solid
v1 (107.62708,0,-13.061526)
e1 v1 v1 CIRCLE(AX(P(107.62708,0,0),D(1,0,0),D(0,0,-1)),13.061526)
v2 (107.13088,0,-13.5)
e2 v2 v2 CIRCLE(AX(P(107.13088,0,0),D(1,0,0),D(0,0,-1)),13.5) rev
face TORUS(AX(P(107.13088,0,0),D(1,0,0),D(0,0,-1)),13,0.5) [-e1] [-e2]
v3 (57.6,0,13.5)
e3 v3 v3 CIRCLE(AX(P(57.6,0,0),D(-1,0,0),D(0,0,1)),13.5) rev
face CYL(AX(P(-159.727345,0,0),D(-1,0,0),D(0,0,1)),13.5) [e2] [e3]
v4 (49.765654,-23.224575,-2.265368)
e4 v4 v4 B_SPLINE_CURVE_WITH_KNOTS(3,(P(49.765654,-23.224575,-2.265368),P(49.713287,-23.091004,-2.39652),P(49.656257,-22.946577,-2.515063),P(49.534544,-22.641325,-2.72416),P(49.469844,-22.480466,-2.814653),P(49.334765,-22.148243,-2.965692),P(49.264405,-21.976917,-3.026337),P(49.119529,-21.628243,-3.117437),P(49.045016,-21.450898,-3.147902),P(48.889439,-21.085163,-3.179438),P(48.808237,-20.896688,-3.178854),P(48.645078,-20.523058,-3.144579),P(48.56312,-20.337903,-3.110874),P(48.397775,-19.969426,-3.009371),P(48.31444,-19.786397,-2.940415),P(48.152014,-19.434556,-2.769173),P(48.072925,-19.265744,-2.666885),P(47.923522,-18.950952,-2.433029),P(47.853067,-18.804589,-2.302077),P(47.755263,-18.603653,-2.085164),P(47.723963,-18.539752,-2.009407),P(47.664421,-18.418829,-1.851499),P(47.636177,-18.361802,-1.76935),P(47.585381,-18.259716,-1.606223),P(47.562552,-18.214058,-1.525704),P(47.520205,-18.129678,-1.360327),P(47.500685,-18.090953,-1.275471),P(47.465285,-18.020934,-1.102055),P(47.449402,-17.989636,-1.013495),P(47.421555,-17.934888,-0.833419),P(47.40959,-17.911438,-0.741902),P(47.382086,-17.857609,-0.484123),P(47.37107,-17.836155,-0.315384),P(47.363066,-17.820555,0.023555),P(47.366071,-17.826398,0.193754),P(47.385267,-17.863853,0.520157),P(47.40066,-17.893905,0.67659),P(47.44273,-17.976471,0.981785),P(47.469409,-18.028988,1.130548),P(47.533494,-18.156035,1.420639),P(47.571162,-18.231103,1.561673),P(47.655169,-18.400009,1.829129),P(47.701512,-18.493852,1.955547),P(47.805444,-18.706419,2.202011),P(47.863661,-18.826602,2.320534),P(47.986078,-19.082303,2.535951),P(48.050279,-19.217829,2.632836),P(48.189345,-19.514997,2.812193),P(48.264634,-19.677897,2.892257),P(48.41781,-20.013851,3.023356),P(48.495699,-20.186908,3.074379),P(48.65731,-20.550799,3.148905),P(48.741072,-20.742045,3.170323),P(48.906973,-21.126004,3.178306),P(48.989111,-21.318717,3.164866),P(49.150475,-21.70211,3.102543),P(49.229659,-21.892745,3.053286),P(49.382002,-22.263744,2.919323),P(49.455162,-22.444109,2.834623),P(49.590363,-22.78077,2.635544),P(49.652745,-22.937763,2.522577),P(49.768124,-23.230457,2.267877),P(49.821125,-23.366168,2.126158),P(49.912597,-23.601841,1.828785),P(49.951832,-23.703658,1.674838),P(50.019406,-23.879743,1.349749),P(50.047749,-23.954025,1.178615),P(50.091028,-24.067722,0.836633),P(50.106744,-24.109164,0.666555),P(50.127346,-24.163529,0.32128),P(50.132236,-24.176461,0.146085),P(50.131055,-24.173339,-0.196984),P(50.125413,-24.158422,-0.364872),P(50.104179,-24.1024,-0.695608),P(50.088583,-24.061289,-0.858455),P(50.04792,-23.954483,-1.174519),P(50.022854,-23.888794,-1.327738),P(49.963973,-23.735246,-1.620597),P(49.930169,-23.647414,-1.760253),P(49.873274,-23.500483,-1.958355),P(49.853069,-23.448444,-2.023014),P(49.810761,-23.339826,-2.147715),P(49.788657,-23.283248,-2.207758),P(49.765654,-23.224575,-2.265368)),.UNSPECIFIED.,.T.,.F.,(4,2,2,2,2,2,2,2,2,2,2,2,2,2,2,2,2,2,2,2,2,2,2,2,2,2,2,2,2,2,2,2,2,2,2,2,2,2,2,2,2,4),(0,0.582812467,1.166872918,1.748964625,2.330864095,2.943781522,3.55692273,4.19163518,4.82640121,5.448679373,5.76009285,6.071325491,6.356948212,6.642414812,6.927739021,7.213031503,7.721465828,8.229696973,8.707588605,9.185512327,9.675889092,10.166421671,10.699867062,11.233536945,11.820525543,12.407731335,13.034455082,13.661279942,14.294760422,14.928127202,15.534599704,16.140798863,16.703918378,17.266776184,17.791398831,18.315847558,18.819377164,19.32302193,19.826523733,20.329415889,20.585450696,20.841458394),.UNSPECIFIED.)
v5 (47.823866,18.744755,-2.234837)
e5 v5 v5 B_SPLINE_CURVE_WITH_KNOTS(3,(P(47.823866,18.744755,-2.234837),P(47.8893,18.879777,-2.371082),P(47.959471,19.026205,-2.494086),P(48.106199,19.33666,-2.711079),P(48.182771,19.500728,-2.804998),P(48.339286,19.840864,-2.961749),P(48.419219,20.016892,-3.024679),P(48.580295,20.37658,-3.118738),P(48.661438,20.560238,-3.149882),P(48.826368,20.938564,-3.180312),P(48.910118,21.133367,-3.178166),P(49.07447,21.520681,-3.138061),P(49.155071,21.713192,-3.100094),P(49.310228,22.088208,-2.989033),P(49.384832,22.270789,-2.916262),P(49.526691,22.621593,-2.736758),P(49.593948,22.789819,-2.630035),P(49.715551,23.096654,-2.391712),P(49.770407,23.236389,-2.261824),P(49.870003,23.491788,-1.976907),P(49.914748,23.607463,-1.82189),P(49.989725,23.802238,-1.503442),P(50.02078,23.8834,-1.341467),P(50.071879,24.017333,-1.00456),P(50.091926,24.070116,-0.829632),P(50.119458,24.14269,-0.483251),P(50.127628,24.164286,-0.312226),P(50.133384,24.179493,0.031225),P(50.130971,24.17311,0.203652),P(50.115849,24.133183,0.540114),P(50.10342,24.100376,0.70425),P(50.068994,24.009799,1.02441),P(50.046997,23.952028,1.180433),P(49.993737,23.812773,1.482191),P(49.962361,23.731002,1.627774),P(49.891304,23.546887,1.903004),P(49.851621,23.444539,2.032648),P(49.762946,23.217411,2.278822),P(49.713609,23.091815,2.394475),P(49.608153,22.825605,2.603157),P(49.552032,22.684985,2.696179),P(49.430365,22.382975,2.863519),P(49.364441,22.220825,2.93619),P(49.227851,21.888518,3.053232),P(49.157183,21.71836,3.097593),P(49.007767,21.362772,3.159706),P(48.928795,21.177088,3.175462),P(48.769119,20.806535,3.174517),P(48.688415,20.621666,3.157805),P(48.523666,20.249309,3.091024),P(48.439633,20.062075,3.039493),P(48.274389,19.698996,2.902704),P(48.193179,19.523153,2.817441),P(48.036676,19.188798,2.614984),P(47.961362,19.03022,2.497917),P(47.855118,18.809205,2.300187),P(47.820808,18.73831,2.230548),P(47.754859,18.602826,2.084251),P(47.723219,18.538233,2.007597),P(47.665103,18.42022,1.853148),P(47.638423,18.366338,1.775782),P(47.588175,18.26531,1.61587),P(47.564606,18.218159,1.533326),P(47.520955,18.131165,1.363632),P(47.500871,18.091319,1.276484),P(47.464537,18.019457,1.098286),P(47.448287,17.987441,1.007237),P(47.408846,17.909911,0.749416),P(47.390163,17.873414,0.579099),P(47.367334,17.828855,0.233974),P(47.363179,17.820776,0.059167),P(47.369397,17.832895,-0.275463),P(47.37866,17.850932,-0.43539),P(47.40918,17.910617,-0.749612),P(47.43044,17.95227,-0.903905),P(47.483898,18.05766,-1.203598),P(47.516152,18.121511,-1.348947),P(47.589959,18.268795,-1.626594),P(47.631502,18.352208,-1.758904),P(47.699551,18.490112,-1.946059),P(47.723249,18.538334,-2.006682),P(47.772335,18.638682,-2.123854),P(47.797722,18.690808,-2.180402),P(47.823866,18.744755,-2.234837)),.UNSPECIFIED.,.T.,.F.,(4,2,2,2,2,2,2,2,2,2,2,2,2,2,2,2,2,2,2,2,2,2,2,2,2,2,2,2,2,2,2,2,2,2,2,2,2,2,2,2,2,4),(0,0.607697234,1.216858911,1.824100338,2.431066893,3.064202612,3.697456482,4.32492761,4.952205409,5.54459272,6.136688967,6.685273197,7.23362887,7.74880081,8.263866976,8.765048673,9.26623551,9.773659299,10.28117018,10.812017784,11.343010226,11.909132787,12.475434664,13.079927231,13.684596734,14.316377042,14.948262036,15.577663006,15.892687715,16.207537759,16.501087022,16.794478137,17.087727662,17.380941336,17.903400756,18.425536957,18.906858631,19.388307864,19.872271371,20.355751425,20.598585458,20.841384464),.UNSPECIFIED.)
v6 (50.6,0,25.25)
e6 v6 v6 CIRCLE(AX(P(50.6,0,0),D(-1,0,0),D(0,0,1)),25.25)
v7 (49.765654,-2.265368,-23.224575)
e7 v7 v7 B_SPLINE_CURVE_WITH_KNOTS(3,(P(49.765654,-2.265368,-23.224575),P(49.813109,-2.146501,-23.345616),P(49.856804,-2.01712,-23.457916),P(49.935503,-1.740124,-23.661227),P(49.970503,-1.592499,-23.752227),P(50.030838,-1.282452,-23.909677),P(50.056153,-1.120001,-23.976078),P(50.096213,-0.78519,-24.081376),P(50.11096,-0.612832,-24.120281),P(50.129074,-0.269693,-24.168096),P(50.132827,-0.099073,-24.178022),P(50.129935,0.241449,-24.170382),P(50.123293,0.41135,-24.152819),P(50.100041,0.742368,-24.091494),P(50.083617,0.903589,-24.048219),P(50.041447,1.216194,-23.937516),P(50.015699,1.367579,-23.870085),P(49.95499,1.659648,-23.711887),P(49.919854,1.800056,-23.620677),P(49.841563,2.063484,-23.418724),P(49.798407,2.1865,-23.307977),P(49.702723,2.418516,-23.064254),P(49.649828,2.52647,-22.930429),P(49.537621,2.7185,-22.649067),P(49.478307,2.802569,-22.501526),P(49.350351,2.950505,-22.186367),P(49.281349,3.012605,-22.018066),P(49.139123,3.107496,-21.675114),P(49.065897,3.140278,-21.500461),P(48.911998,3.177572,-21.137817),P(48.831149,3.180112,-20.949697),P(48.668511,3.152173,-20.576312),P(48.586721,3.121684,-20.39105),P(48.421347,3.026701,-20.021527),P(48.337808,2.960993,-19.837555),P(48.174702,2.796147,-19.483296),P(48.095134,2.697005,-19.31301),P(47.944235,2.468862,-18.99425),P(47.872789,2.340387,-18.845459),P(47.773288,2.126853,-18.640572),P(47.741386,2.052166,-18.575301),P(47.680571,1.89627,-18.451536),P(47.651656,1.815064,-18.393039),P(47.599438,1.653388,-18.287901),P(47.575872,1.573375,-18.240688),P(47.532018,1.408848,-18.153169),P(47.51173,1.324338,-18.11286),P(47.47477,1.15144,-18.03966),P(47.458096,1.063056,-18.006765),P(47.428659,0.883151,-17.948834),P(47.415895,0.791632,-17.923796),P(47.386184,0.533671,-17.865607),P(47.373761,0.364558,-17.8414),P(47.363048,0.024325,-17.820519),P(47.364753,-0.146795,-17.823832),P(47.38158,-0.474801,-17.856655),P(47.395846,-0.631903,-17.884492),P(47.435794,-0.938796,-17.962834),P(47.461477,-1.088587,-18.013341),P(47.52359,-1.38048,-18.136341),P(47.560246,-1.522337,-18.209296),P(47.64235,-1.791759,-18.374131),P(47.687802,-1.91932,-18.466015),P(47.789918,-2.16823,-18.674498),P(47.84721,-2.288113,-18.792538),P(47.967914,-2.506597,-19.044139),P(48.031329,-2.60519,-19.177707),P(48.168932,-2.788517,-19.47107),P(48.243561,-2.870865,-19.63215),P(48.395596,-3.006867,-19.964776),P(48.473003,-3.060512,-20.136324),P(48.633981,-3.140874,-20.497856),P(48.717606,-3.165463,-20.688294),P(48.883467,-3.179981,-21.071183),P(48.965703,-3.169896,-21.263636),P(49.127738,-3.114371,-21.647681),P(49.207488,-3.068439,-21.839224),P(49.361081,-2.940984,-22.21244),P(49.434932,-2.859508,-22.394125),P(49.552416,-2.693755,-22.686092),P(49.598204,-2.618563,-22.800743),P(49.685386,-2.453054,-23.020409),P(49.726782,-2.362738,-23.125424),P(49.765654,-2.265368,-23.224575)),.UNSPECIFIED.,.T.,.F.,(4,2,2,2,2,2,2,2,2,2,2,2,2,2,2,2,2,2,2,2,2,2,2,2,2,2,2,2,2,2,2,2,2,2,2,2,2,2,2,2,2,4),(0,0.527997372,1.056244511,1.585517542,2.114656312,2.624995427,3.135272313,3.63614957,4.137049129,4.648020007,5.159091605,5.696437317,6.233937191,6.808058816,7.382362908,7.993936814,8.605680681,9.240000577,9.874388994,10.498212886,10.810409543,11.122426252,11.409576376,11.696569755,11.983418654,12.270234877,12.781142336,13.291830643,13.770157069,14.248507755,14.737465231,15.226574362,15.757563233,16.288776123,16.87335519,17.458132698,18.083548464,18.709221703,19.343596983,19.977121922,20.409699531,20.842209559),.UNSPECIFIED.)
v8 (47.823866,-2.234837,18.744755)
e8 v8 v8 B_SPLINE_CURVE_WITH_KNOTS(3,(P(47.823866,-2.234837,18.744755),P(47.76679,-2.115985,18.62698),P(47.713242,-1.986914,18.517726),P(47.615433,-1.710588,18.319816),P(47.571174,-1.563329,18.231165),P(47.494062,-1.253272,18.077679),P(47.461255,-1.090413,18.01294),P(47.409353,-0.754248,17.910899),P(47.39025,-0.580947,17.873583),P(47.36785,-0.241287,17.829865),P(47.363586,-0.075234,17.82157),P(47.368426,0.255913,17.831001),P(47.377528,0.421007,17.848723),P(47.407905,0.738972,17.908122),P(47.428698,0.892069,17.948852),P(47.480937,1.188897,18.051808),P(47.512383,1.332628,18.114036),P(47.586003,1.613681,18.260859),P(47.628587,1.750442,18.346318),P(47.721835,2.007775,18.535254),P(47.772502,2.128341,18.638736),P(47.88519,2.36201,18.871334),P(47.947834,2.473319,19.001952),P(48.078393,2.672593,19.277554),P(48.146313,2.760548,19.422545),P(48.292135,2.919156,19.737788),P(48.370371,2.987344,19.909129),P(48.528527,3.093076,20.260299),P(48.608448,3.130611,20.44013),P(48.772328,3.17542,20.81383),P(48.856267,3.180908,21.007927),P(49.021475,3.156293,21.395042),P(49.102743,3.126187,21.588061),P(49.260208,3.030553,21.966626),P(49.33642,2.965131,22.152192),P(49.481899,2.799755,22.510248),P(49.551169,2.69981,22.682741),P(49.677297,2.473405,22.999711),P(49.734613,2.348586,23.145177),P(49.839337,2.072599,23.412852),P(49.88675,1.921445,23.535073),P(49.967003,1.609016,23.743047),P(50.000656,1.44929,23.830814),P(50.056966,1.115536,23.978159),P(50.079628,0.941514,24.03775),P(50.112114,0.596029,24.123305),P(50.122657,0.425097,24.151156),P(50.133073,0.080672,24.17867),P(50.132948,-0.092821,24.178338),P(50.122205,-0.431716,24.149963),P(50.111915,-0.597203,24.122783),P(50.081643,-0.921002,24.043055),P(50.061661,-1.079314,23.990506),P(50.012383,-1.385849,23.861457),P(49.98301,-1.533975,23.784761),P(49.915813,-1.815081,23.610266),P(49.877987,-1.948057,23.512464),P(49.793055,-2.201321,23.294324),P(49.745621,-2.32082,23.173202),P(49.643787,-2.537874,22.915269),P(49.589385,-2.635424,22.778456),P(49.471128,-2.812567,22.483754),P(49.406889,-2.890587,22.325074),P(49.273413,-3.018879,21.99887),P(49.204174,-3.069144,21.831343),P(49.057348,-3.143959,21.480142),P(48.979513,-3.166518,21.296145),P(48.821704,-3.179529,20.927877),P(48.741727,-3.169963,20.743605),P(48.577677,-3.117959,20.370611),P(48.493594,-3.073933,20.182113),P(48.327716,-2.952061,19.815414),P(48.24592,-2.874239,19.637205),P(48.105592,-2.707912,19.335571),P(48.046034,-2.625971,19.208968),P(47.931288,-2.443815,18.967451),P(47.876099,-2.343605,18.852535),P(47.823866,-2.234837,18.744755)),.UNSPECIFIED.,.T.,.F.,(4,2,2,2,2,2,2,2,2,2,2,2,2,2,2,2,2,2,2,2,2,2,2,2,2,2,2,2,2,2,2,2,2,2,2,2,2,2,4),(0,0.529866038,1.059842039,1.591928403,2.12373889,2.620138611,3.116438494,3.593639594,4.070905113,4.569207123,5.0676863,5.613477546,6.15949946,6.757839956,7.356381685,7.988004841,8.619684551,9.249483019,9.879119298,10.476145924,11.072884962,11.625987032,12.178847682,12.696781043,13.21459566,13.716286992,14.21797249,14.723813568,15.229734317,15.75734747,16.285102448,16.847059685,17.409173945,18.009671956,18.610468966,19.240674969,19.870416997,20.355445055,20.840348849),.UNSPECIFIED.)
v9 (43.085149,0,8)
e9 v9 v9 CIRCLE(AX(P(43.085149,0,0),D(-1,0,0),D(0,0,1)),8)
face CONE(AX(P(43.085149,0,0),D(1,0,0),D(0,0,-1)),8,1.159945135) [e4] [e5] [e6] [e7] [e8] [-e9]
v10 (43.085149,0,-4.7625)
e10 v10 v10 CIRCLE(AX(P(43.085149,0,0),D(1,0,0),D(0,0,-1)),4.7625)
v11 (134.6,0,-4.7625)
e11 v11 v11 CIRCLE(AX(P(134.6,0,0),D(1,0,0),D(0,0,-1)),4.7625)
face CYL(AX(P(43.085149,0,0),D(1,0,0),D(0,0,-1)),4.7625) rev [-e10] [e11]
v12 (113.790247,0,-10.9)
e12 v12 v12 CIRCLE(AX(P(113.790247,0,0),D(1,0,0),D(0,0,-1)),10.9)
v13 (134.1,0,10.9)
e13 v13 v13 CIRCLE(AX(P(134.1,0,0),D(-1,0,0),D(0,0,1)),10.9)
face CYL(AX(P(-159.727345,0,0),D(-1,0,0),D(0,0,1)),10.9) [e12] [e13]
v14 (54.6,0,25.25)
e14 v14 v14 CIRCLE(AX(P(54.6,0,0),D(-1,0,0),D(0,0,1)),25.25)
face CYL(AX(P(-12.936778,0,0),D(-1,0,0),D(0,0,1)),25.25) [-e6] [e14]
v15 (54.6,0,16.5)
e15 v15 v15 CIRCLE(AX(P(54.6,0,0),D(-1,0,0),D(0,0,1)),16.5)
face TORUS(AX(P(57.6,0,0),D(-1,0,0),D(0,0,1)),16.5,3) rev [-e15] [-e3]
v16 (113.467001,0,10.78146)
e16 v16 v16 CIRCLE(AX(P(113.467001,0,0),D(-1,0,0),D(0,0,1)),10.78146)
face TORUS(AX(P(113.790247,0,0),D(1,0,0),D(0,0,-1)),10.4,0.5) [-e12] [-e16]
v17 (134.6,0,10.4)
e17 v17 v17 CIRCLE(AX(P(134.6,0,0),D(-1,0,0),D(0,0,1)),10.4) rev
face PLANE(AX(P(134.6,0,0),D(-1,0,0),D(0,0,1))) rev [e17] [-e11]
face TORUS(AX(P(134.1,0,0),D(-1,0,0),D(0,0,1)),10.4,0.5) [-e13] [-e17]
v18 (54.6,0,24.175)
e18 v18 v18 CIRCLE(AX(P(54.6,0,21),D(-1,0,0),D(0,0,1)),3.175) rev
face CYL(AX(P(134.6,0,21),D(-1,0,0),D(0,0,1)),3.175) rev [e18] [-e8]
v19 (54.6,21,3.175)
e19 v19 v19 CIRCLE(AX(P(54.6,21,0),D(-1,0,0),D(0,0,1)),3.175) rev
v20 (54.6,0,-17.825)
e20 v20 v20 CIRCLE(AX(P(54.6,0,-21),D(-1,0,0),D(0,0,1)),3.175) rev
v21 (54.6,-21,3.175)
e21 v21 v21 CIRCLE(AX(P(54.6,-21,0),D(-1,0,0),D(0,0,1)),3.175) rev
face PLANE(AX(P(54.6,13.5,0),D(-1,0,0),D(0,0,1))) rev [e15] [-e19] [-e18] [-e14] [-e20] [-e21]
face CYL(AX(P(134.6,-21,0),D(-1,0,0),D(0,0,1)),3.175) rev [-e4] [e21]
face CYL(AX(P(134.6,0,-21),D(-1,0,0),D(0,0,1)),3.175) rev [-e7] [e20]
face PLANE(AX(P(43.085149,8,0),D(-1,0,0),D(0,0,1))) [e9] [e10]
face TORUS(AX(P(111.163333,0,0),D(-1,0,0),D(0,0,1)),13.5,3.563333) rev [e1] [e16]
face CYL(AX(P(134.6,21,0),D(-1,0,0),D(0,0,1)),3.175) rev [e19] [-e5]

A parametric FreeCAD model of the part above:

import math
import FreeCAD as App
import Part
import Sketcher

V = App.Vector
Q = App.Units.Quantity


def edges_at(feature, points):
    """Names of the edges that pass closest to the given points."""
    edges = feature.Shape.Edges
    near = lambda p: min(range(len(edges)), key=lambda i: edges[i].distToShape(Part.Vertex(*p))[0])
    return sorted({f"Edge{near(p) + 1}" for p in points})

doc = App.newDocument("Part")
body = doc.addObject("PartDesign::Body", "Body")

# Sketch on XY plane
sketch1 = doc.addObject("Sketcher::SketchObject", "Sketch")
body.addObject(sketch1)
sketch1.AttachmentSupport = (doc.XY_Plane, [""])
sketch1.MapMode = "FlatFace"
sketch1.addGeometry([
    Part.LineSegment(V(134.6, 0, 0), V(134.6, 10.9, 0)),  # 0
    Part.LineSegment(V(134.6, 10.9, 0), V(113.6, 10.9, 0)),  # 1
    Part.ArcOfCircle(Part.Circle(V(111.163333, 13.5, 0), V(0, 0, 1), 3.563333), math.radians(180), math.radians(313.142614)),  # 2
    Part.LineSegment(V(107.6, 13.5, 0), V(54.6, 13.5, 0)),  # 3
    Part.LineSegment(V(54.6, 13.5, 0), V(54.6, 27.5, 0)),  # 4
    Part.LineSegment(V(54.6, 27.5, 0), V(47.6, 27.5, 0)),  # 5
    Part.LineSegment(V(47.6, 27.5, 0), V(47.6, 32.25, 0)),  # 6
    Part.LineSegment(V(47.6, 32.25, 0), V(44.6, 32.25, 0)),  # 7
    Part.LineSegment(V(44.6, 32.25, 0), V(44.6, 37, 0)),  # 8
    Part.LineSegment(V(44.6, 37, 0), V(40.6, 37, 0)),  # 9
    Part.LineSegment(V(40.6, 37, 0), V(40.6, 42, 0)),  # 10
    Part.LineSegment(V(40.6, 42, 0), V(23, 42, 0)),  # 11
    Part.LineSegment(V(23, 42, 0), V(23, 43, 0)),  # 12
    Part.LineSegment(V(23, 43, 0), V(5, 43, 0)),  # 13
    Part.LineSegment(V(5, 43, 0), V(5, 44, 0)),  # 14
    Part.LineSegment(V(5, 44, 0), V(0, 44, 0)),  # 15
    Part.LineSegment(V(0, 44, 0), V(0, 0, 0)),  # 16
    Part.LineSegment(V(0, 0, 0), V(134.6, 0, 0)),  # 17
], False)
sketch1.addConstraint([
    Sketcher.Constraint("Coincident", 0, 2, 1, 1),
    Sketcher.Constraint("Coincident", 1, 2, 2, 2),
    Sketcher.Constraint("Coincident", 2, 1, 3, 1),
    Sketcher.Constraint("Coincident", 3, 2, 4, 1),
    Sketcher.Constraint("Coincident", 4, 2, 5, 1),
    Sketcher.Constraint("Coincident", 5, 2, 6, 1),
    Sketcher.Constraint("Coincident", 6, 2, 7, 1),
    Sketcher.Constraint("Coincident", 7, 2, 8, 1),
    Sketcher.Constraint("Coincident", 8, 2, 9, 1),
    Sketcher.Constraint("Coincident", 9, 2, 10, 1),
    Sketcher.Constraint("Coincident", 10, 2, 11, 1),
    Sketcher.Constraint("Coincident", 11, 2, 12, 1),
    Sketcher.Constraint("Coincident", 12, 2, 13, 1),
    Sketcher.Constraint("Coincident", 13, 2, 14, 1),
    Sketcher.Constraint("Coincident", 14, 2, 15, 1),
    Sketcher.Constraint("Coincident", 15, 2, 16, 1),
    Sketcher.Constraint("Coincident", 16, 2, 17, 1),
    Sketcher.Constraint("Coincident", 17, 2, 0, 1),
    Sketcher.Constraint("Vertical", 0),
    Sketcher.Constraint("Horizontal", 1),
    Sketcher.Constraint("Horizontal", 3),
    Sketcher.Constraint("Vertical", 4),
    Sketcher.Constraint("Horizontal", 5),
    Sketcher.Constraint("Vertical", 6),
    Sketcher.Constraint("Horizontal", 7),
    Sketcher.Constraint("Vertical", 8),
    Sketcher.Constraint("Horizontal", 9),
    Sketcher.Constraint("Vertical", 10),
    Sketcher.Constraint("Horizontal", 11),
    Sketcher.Constraint("Vertical", 12),
    Sketcher.Constraint("Horizontal", 13),
    Sketcher.Constraint("Vertical", 14),
    Sketcher.Constraint("Horizontal", 15),
    Sketcher.Constraint("Vertical", 16),
    Sketcher.Constraint("Horizontal", 17),
    Sketcher.Constraint("Coincident", 16, 2, -1, 1),
    Sketcher.Constraint("Equal", 6, 8),
    Sketcher.Constraint("Equal", 15, 10),
    Sketcher.Constraint("Equal", 12, 14),
    Sketcher.Constraint("DistanceX", 1, 2, 1, 1, Q("21 mm")),
    Sketcher.Constraint("DistanceX", 3, 2, 3, 1, Q("53 mm")),
    Sketcher.Constraint("DistanceX", 5, 2, 5, 1, Q("7 mm")),
    Sketcher.Constraint("DistanceX", 7, 2, 7, 1, Q("3 mm")),
    Sketcher.Constraint("DistanceX", 9, 2, 9, 1, Q("4 mm")),
    Sketcher.Constraint("DistanceX", 13, 2, 13, 1, Q("18 mm")),
    Sketcher.Constraint("DistanceX", 15, 2, 15, 1, Q("5 mm")),
    Sketcher.Constraint("DistanceY", 4, 1, 4, 2, Q("14 mm")),
    Sketcher.Constraint("DistanceY", 12, 1, 12, 2, Q("1 mm")),
    Sketcher.Constraint("DistanceY", 16, 2, 16, 1, Q("44 mm")),
    Sketcher.Constraint("DistanceX", 11, 2, 11, 1, Q("17.6 mm")),
    Sketcher.Constraint("DistanceX", 17, 1, 17, 2, Q("134.6 mm")),
    Sketcher.Constraint("DistanceY", 0, 1, 0, 2, Q("10.9 mm")),
    Sketcher.Constraint("DistanceY", 2, 3, 4, 2, Q("14 mm")),
    Sketcher.Constraint("DistanceY", 6, 1, 6, 2, Q("4.75 mm")),
])
revolution = doc.addObject("PartDesign::Revolution", "Revolution")
body.addObject(revolution)
revolution.Profile = sketch1
revolution.ReferenceAxis = (sketch1, ["H_Axis"])
revolution.Angle = 360
doc.recompute()

fillet = doc.addObject("PartDesign::Fillet", "Fillet")
body.addObject(fillet)
fillet.Base = (revolution, edges_at(revolution, [
    (5, -43, 0),
    (23, -42, 0),
    (40.6, -42, 0),
    (40.6, -37, 0),
    (44.6, -37, 0),
    (44.6, -32.25, 0),
    (47.6, -32.25, 0),
    (47.6, -27.5, 0),
    (54.6, -27.5, 0),
    (107.6, -13.5, 0),
    (113.6, -10.9, 0),
    (134.6, -10.9, 0),
]))
fillet.Radius = 0.5
doc.recompute()

fillet2 = doc.addObject("PartDesign::Fillet", "Fillet001")
body.addObject(fillet2)
fillet2.Base = (fillet, edges_at(fillet, [(54.6, -13.5, 0)]))
fillet2.Radius = 3

# Sketch on XY plane
sketch2 = doc.addObject("Sketcher::SketchObject", "Sketch001")
body.addObject(sketch2)
sketch2.AttachmentSupport = (doc.XY_Plane, [""])
sketch2.MapMode = "FlatFace"
sketch2.addGeometry([
    Part.LineSegment(V(50.6, 25.25, 0), V(64.002596, 25.25, 0)),  # 0
    Part.LineSegment(V(64.002596, 25.25, 0), V(64.002596, 54.446385, 0)),  # 1
    Part.LineSegment(V(64.002596, 54.446385, 0), V(-9.354779, 54.446385, 0)),  # 2
    Part.LineSegment(V(-9.354779, 54.446385, 0), V(-9.354779, 0, 0)),  # 3
    Part.LineSegment(V(-9.354779, 0, 0), V(43.085149, 0, 0)),  # 4
    Part.LineSegment(V(43.085149, 0, 0), V(43.085149, 8, 0)),  # 5
    Part.LineSegment(V(43.085149, 8, 0), V(50.6, 25.25, 0)),  # 6
], False)
sketch2.addConstraint([
    Sketcher.Constraint("Coincident", 0, 2, 1, 1),
    Sketcher.Constraint("Coincident", 1, 2, 2, 1),
    Sketcher.Constraint("Coincident", 2, 2, 3, 1),
    Sketcher.Constraint("Coincident", 3, 2, 4, 1),
    Sketcher.Constraint("Coincident", 4, 2, 5, 1),
    Sketcher.Constraint("Coincident", 5, 2, 6, 1),
    Sketcher.Constraint("Coincident", 6, 2, 0, 1),
    Sketcher.Constraint("Horizontal", 0),
    Sketcher.Constraint("Vertical", 1),
    Sketcher.Constraint("Horizontal", 2),
    Sketcher.Constraint("Vertical", 3),
    Sketcher.Constraint("Horizontal", 4),
    Sketcher.Constraint("Vertical", 5),
    Sketcher.Constraint("PointOnObject", 3, 2, -1),
    Sketcher.Constraint("DistanceY", 5, 1, 5, 2, Q("8 mm")),
    Sketcher.Constraint("DistanceX", -1, 1, 6, 2, Q("50.6 mm")),
    Sketcher.Constraint("DistanceY", -1, 1, 0, 2, Q("25.25 mm")),
    Sketcher.Constraint("Distance", 6, Q("18.815831 mm")),
    Sketcher.Constraint("DistanceX", 0, 1, 0, 2, Q("13.402596 mm")),
    Sketcher.Constraint("DistanceX", 2, 2, 2, 1, Q("73.357375 mm")),
    Sketcher.Constraint("DistanceY", 1, 1, 1, 2, Q("29.196385 mm")),
])
groove = doc.addObject("PartDesign::Groove", "Groove")
body.addObject(groove)
groove.Profile = sketch2
groove.ReferenceAxis = (sketch2, ["H_Axis"])
groove.Angle = 360

# Sketch on YZ plane
sketch3 = doc.addObject("Sketcher::SketchObject", "Sketch002")
body.addObject(sketch3)
sketch3.AttachmentSupport = (doc.YZ_Plane, [""])
sketch3.MapMode = "FlatFace"
sketch3.AttachmentOffset = App.Placement(V(0, 0, 134.6), App.Rotation())
sketch3.addGeometry(Part.Circle(V(0, 0, 0), V(0, 0, 1), 4.7625), False)
sketch3.addConstraint([
    Sketcher.Constraint("Coincident", 0, 3, -1, 1),
    Sketcher.Constraint("Diameter", 0, Q("9.525 mm")),
])
pocket1 = doc.addObject("PartDesign::Pocket", "Pocket")
body.addObject(pocket1)
pocket1.Profile = sketch3
pocket1.Type = "ThroughAll"

# Sketch on YZ plane
sketch4 = doc.addObject("Sketcher::SketchObject", "Sketch003")
body.addObject(sketch4)
sketch4.AttachmentSupport = (doc.YZ_Plane, [""])
sketch4.MapMode = "FlatFace"
sketch4.addGeometry([
    Part.Circle(V(0, -21, 0), V(0, 0, 1), 3.175),
    Part.Circle(V(-21, 0, 0), V(0, 0, 1), 3.175),
    Part.Circle(V(21, 0, 0), V(0, 0, 1), 3.175),
    Part.Circle(V(0, 21, 0), V(0, 0, 1), 3.175),
], False)
sketch4.addConstraint([
    Sketcher.Constraint("Equal", 0, 1),
    Sketcher.Constraint("Equal", 1, 2),
    Sketcher.Constraint("Equal", 2, 3),
    Sketcher.Constraint("Symmetric", 1, 3, 2, 3, -1, 1),
    Sketcher.Constraint("Symmetric", 0, 3, 3, 3, -1, 1),
    Sketcher.Constraint("PointOnObject", 0, 3, -2),
    Sketcher.Constraint("PointOnObject", 1, 3, -1),
    Sketcher.Constraint("Diameter", 0, Q("6.35 mm")),
    Sketcher.Constraint("DistanceY", 0, 3, -1, 1, Q("21 mm")),
    Sketcher.Constraint("DistanceX", 1, 3, -1, 1, Q("21 mm")),
])
pocket2 = doc.addObject("PartDesign::Pocket", "Pocket001")
body.addObject(pocket2)
pocket2.Profile = sketch4
pocket2.Type = "ThroughAll"
pocket2.Reversed = True

doc.recompute()
